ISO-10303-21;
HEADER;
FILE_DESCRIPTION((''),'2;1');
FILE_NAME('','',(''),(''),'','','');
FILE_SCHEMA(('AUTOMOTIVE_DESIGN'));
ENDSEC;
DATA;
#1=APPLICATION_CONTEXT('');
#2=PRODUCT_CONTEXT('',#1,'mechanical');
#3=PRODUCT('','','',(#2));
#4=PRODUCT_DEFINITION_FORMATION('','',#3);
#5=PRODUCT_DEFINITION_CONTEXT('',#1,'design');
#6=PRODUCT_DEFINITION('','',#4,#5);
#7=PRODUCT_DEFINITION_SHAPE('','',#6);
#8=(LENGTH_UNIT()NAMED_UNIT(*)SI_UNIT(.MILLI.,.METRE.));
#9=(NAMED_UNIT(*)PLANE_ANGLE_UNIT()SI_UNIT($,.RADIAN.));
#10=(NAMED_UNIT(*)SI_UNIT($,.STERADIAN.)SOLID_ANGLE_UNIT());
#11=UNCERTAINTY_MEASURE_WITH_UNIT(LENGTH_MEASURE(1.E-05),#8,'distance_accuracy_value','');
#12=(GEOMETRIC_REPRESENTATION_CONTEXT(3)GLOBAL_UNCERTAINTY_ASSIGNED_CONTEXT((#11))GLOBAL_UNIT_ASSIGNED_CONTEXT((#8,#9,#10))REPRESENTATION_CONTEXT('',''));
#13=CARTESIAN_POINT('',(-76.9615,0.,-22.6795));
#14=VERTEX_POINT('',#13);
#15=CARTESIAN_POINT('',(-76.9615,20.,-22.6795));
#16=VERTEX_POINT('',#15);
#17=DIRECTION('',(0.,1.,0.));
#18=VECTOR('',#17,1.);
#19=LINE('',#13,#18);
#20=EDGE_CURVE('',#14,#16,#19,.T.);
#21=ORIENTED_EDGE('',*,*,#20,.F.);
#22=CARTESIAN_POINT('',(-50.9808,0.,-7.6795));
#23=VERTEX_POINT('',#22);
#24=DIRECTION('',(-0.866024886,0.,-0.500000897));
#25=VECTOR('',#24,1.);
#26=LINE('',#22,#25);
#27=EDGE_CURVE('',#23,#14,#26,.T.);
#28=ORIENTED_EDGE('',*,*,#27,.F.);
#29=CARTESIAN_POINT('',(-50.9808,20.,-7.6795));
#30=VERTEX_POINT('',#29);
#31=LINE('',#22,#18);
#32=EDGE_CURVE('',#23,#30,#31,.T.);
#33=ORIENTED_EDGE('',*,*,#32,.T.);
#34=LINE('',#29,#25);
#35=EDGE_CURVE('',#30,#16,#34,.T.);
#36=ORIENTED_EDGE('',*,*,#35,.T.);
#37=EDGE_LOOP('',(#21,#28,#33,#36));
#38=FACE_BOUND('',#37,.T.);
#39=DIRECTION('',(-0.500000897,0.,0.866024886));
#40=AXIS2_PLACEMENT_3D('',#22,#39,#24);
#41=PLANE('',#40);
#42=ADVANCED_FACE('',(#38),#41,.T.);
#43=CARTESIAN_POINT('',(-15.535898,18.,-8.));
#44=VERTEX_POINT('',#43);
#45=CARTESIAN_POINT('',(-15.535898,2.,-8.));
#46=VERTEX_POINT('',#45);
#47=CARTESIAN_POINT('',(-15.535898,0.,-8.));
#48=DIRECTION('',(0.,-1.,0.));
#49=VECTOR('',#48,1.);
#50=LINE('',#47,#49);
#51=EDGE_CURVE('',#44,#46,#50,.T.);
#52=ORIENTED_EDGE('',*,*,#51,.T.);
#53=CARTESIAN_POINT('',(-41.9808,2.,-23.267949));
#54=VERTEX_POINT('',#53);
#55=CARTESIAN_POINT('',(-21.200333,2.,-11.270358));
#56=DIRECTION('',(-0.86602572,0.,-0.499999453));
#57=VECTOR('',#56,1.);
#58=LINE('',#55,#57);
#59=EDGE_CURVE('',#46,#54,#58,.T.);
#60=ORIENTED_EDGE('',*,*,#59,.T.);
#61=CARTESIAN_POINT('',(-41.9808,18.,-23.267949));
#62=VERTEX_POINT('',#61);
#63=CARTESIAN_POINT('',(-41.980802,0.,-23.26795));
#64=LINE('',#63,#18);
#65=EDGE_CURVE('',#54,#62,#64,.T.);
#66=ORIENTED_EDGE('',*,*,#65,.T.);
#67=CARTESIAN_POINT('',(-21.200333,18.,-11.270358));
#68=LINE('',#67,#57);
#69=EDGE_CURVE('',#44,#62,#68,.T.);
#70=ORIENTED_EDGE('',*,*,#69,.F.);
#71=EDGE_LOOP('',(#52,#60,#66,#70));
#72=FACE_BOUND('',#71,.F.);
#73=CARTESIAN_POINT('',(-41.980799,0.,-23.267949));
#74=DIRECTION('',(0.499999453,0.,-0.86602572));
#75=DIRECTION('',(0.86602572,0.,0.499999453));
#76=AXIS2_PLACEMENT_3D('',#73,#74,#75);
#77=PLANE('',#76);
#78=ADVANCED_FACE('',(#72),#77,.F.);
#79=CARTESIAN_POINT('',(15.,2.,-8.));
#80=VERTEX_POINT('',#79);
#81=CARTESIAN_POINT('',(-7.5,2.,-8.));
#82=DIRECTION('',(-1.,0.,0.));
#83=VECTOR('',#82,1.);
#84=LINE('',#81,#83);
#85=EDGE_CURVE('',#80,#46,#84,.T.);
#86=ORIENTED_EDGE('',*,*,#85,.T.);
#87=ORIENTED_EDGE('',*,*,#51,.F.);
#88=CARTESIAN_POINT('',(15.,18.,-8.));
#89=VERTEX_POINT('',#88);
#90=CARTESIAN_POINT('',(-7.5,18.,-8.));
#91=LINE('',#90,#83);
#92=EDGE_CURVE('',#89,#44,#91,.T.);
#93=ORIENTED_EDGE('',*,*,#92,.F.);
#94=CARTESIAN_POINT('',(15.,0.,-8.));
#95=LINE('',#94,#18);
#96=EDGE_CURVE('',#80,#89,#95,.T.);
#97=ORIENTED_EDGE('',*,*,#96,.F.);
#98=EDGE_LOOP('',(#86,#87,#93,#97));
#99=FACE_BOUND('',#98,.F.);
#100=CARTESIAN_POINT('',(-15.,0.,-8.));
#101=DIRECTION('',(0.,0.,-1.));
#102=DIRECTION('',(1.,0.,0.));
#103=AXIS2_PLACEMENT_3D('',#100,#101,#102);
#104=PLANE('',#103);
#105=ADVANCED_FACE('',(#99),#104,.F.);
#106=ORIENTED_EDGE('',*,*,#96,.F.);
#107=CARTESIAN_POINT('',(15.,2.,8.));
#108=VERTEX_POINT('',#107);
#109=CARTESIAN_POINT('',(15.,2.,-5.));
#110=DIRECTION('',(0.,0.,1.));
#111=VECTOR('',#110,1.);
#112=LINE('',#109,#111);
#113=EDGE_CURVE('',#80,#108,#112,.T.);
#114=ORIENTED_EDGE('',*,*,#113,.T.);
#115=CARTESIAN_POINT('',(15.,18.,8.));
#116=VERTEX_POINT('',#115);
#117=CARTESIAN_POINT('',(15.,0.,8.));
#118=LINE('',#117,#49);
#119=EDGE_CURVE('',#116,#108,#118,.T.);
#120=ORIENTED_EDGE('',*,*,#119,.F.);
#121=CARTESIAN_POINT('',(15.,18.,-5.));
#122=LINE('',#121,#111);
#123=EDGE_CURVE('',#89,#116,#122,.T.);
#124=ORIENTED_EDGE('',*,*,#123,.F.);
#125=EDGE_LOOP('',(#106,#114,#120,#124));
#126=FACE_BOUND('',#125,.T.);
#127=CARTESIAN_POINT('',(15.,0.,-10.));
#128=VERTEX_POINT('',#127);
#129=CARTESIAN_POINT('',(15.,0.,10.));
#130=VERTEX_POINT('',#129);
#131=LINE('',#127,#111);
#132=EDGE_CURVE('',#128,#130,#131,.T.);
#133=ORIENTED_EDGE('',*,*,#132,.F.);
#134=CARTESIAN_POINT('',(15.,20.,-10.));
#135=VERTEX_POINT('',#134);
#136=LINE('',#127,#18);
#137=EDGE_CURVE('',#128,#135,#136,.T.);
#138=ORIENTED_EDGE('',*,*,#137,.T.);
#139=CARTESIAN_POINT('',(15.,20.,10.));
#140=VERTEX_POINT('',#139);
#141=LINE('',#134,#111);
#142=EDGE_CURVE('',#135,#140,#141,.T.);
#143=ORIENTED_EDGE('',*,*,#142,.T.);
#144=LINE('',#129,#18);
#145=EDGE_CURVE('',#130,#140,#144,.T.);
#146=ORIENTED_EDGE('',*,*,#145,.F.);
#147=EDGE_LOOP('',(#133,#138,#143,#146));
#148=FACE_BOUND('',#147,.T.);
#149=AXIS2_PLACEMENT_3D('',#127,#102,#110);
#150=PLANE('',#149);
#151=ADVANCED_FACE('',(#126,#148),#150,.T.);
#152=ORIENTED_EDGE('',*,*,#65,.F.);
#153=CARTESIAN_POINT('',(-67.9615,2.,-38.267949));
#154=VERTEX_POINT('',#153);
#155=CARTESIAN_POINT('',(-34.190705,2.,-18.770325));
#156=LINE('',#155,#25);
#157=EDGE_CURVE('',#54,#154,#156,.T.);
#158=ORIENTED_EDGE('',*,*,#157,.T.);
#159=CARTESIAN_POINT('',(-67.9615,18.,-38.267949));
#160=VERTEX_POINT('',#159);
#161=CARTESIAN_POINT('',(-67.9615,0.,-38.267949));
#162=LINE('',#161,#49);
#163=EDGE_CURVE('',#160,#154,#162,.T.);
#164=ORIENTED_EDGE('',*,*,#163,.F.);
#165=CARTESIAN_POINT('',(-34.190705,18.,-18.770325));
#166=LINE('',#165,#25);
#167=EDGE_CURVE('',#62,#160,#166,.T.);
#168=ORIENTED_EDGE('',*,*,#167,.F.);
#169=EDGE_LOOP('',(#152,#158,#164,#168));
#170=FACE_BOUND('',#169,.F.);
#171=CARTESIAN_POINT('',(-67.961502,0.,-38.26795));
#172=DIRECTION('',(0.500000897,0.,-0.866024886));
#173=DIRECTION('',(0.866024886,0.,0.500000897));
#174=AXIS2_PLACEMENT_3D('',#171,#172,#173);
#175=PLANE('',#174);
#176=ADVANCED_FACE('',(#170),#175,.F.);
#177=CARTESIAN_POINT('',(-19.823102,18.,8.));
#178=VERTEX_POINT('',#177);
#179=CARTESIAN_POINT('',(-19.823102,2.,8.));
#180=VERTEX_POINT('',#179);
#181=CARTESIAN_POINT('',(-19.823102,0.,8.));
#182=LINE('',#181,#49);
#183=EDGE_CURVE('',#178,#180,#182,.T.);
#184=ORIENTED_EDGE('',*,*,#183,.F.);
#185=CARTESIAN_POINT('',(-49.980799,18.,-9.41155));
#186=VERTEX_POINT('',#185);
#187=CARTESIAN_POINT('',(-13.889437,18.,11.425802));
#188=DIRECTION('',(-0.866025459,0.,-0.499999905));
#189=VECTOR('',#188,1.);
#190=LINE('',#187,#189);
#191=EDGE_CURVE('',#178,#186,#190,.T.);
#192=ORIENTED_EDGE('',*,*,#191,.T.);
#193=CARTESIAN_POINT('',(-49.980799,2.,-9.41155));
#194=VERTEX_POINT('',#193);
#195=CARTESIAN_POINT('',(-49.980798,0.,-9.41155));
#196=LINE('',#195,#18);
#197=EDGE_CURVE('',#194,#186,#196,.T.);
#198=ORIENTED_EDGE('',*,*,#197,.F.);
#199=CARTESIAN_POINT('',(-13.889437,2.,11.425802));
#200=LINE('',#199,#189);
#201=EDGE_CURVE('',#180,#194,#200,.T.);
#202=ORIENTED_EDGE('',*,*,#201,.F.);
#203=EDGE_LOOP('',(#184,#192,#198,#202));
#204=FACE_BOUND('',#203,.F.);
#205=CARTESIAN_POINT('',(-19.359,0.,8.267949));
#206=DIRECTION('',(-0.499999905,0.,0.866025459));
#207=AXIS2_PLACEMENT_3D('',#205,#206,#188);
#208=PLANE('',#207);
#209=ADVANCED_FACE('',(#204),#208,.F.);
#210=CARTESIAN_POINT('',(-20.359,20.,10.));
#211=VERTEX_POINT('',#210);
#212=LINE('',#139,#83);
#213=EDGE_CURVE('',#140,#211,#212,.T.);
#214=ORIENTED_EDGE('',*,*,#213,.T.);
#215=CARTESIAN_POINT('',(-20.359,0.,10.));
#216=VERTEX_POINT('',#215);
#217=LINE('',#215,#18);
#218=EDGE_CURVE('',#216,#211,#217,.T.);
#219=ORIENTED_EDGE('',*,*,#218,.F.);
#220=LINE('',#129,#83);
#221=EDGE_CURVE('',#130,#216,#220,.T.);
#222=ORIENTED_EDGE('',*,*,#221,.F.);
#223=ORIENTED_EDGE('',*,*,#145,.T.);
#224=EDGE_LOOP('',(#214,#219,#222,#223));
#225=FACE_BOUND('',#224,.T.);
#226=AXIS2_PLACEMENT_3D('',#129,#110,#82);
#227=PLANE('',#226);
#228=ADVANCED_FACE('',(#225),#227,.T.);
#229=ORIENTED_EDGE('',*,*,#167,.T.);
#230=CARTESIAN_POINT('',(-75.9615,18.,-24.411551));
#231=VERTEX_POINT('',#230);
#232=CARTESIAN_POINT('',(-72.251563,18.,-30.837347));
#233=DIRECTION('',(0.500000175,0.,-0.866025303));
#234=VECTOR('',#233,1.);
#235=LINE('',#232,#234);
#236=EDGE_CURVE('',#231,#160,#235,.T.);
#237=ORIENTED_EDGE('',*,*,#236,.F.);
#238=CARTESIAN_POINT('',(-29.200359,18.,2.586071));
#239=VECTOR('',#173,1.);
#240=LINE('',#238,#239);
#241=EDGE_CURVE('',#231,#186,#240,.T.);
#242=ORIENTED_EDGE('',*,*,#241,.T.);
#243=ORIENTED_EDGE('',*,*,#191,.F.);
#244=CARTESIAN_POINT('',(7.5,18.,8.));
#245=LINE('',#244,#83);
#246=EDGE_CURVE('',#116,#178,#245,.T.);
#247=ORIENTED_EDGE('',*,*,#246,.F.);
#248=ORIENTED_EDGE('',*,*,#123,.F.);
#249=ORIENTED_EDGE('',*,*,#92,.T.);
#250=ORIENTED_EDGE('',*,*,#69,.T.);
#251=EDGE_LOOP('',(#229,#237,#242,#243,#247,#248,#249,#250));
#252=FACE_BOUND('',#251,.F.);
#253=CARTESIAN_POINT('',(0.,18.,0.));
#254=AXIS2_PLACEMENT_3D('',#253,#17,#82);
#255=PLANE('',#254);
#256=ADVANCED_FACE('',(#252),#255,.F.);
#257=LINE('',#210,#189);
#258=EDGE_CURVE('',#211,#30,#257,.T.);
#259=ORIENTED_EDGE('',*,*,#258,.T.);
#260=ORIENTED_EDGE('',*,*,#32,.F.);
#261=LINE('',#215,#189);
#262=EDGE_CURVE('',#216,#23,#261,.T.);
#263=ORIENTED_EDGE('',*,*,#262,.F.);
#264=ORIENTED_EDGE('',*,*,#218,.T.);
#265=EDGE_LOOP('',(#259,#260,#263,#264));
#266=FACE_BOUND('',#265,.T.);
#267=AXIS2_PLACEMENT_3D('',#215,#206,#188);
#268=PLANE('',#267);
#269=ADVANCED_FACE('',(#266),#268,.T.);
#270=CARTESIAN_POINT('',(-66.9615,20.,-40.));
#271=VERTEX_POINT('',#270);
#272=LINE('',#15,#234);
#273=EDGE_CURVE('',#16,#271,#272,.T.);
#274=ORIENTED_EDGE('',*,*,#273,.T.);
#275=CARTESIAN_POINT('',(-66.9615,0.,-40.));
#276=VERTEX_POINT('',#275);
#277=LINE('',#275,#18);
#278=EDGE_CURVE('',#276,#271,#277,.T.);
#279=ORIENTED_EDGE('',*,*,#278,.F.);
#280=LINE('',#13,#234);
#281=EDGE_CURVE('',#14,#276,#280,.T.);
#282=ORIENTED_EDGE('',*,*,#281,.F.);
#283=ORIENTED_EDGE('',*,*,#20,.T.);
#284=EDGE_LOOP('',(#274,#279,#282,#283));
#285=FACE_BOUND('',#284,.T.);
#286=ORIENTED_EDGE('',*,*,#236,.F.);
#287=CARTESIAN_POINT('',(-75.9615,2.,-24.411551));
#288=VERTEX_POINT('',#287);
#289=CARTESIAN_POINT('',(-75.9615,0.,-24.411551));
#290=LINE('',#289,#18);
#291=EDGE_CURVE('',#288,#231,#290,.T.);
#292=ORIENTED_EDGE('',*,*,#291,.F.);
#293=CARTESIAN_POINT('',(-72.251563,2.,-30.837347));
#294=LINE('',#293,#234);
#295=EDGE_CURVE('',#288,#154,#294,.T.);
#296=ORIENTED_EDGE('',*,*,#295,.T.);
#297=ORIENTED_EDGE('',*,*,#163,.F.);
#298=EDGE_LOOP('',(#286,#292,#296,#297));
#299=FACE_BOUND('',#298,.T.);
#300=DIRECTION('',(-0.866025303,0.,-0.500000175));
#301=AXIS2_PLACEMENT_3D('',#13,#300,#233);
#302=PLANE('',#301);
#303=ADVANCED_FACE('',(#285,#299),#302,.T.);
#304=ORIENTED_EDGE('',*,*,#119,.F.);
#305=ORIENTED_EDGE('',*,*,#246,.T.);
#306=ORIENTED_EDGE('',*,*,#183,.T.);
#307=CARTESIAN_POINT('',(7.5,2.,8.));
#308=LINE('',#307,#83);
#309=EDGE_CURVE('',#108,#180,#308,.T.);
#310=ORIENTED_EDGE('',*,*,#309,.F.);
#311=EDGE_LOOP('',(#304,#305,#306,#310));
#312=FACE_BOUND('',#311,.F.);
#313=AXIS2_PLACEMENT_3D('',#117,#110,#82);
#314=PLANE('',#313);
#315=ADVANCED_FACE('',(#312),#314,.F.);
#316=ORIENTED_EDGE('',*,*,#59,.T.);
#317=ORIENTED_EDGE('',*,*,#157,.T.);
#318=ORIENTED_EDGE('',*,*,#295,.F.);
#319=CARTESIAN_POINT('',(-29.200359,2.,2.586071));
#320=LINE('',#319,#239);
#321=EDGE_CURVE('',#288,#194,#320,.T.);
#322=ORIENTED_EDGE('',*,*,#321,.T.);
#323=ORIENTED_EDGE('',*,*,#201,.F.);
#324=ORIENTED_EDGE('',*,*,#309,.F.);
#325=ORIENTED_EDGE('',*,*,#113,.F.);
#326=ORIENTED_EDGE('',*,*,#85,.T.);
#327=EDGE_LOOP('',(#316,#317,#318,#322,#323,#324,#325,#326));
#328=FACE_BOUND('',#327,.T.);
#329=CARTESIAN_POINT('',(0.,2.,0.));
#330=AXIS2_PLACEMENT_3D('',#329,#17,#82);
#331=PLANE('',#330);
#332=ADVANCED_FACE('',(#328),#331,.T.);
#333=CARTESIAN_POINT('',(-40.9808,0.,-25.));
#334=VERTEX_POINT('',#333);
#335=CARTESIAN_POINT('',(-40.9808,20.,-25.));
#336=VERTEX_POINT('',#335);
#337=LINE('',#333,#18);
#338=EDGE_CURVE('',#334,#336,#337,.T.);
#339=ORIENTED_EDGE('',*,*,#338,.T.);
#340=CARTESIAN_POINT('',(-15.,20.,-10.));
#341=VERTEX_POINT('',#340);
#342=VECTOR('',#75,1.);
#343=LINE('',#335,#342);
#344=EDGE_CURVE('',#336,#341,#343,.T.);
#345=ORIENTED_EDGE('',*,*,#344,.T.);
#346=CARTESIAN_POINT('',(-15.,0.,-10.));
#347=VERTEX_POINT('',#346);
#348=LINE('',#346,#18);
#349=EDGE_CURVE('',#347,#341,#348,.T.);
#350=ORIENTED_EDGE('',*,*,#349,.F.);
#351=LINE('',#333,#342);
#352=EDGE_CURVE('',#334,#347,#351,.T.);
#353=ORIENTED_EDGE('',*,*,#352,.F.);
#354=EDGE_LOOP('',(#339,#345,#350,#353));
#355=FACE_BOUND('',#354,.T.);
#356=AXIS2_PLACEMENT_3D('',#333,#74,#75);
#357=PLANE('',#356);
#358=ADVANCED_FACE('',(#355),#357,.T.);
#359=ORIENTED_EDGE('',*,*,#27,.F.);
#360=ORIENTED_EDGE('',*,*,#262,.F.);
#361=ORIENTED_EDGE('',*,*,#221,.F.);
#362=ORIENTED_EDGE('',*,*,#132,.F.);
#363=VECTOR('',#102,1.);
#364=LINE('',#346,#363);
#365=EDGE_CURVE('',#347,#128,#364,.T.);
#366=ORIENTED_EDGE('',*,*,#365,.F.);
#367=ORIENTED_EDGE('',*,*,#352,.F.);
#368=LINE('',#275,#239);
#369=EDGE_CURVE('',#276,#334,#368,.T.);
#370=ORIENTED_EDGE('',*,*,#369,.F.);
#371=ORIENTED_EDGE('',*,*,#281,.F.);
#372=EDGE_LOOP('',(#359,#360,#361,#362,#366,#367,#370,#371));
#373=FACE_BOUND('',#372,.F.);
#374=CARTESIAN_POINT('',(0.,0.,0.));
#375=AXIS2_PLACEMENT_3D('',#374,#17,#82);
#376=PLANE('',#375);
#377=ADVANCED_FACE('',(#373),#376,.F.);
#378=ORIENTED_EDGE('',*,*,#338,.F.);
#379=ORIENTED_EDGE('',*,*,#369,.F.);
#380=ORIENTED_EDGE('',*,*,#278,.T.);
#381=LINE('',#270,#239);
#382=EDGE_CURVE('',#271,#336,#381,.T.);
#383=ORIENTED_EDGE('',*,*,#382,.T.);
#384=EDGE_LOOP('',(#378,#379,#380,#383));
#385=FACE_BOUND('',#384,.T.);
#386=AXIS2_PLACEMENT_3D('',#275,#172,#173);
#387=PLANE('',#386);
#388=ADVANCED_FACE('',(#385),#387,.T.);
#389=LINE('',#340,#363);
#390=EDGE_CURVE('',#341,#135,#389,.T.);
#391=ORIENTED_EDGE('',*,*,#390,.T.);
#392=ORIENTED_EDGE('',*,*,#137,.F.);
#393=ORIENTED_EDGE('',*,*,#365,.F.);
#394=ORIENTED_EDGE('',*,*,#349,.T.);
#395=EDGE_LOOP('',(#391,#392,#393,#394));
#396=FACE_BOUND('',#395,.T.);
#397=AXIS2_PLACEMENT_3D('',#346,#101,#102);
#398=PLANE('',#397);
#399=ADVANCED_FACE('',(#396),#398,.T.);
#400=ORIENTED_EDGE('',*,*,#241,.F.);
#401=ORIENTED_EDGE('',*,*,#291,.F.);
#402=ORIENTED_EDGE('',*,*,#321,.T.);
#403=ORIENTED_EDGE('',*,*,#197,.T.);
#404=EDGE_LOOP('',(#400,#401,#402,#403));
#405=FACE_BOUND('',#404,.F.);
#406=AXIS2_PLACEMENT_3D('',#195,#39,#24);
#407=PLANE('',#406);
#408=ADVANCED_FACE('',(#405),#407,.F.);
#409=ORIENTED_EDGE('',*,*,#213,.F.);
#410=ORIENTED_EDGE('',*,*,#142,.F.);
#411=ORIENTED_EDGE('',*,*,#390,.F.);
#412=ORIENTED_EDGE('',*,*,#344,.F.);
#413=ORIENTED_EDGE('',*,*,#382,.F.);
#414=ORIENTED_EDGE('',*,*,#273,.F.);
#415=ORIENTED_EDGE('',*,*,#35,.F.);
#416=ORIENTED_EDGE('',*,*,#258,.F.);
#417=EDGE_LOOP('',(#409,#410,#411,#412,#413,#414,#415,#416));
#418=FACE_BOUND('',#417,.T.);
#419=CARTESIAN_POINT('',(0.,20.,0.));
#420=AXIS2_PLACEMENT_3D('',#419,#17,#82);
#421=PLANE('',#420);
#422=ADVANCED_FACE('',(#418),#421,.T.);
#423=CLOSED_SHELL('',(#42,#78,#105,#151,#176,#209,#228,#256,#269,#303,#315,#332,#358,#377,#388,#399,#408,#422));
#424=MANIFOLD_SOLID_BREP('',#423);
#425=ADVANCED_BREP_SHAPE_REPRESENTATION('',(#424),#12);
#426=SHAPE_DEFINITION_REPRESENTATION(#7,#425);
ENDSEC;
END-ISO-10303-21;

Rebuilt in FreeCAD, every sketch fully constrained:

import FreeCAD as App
import Part
import Sketcher

V = App.Vector
Q = App.Units.Quantity


def faces_at(feature, points):
    """Names of the faces that lie closest to the given points."""
    faces = feature.Shape.Faces
    near = lambda p: min(range(len(faces)), key=lambda i: faces[i].distToShape(Part.Vertex(*p))[0])
    return sorted({f"Face{near(p) + 1}" for p in points})

doc = App.newDocument("Part")
body = doc.addObject("PartDesign::Body", "Body")

# Sketch on XZ plane
sketch1 = body.newObject("Sketcher::SketchObject", "Sketch")
sketch1.AttachmentSupport = (doc.getObject("XZ_Plane"), [""])
sketch1.MapMode = "FlatFace"
sketch1.addGeometry(Part.LineSegment(V(-20, 10, 0), V(15, 10, 0)), False)
sketch1.addGeometry(Part.LineSegment(V(15, 10, 0), V(15, -10, 0)), False)
sketch1.addGeometry(Part.LineSegment(V(15, -10, 0), V(-15, -10, 0)), False)
sketch1.addGeometry(Part.LineSegment(V(-15, -10, 0), V(-41, -25, 0)), False)
sketch1.addGeometry(Part.LineSegment(V(-41, -25, 0), V(-67, -40, 0)), False)
sketch1.addGeometry(Part.LineSegment(V(-67, -40, 0), V(-77, -23, 0)), False)
sketch1.addGeometry(Part.LineSegment(V(-77, -23, 0), V(-51, -8, 0)), False)
sketch1.addGeometry(Part.LineSegment(V(-51, -8, 0), V(-20, 10, 0)), False)
sketch1.addConstraint(Sketcher.Constraint("Coincident", 0, 2, 1, 1))
sketch1.addConstraint(Sketcher.Constraint("Coincident", 1, 2, 2, 1))
sketch1.addConstraint(Sketcher.Constraint("Coincident", 2, 2, 3, 1))
sketch1.addConstraint(Sketcher.Constraint("Coincident", 3, 2, 4, 1))
sketch1.addConstraint(Sketcher.Constraint("Coincident", 4, 2, 5, 1))
sketch1.addConstraint(Sketcher.Constraint("Coincident", 5, 2, 6, 1))
sketch1.addConstraint(Sketcher.Constraint("Coincident", 6, 2, 7, 1))
sketch1.addConstraint(Sketcher.Constraint("Coincident", 7, 2, 0, 1))
sketch1.addConstraint(Sketcher.Constraint("Horizontal", 0))
sketch1.addConstraint(Sketcher.Constraint("Vertical", 1))
sketch1.addConstraint(Sketcher.Constraint("Horizontal", 2))
sketch1.addConstraint(Sketcher.Constraint("Symmetric", 0, 2, 2, 2, -1, 1))
sketch1.addConstraint(Sketcher.Constraint("Parallel", 3, 4))
sketch1.addConstraint(Sketcher.Constraint("Perpendicular", 4, 5))
sketch1.addConstraint(Sketcher.Constraint("Perpendicular", 5, 6))
sketch1.addConstraint(Sketcher.Constraint("Parallel", 6, 7))
sketch1.addConstraint(Sketcher.Constraint("Equal", 3, 4))
sketch1.addConstraint(Sketcher.Constraint("Equal", 4, 6))
sketch1.addConstraint(Sketcher.Constraint("DistanceX", 2, 2, 2, 1, Q("30 mm")))
sketch1.addConstraint(Sketcher.Constraint("DistanceY", 1, 2, 1, 1, Q("20 mm")))
sketch1.addConstraint(Sketcher.Constraint("Angle", 6, Q("30 deg")))
sketch1.addConstraint(Sketcher.Constraint("Distance", 3, Q("30 mm")))
sketch1.addConstraint(Sketcher.Constraint("Distance", 5, Q("20 mm")))
pad1 = body.newObject("PartDesign::Pad", "Pad")
pad1.Profile = sketch1
pad1.Length = 20
pad1.Reversed = True
doc.recompute()

thickness = body.newObject("PartDesign::Thickness", "Thickness")
thickness.Base = (pad1, faces_at(pad1, [(15, 6.667, 3.333), (-70.295, 6.667, -34.227)]))
thickness.Value = 2
thickness.Reversed = True
thickness.Join = "Intersection"

doc.recompute()
